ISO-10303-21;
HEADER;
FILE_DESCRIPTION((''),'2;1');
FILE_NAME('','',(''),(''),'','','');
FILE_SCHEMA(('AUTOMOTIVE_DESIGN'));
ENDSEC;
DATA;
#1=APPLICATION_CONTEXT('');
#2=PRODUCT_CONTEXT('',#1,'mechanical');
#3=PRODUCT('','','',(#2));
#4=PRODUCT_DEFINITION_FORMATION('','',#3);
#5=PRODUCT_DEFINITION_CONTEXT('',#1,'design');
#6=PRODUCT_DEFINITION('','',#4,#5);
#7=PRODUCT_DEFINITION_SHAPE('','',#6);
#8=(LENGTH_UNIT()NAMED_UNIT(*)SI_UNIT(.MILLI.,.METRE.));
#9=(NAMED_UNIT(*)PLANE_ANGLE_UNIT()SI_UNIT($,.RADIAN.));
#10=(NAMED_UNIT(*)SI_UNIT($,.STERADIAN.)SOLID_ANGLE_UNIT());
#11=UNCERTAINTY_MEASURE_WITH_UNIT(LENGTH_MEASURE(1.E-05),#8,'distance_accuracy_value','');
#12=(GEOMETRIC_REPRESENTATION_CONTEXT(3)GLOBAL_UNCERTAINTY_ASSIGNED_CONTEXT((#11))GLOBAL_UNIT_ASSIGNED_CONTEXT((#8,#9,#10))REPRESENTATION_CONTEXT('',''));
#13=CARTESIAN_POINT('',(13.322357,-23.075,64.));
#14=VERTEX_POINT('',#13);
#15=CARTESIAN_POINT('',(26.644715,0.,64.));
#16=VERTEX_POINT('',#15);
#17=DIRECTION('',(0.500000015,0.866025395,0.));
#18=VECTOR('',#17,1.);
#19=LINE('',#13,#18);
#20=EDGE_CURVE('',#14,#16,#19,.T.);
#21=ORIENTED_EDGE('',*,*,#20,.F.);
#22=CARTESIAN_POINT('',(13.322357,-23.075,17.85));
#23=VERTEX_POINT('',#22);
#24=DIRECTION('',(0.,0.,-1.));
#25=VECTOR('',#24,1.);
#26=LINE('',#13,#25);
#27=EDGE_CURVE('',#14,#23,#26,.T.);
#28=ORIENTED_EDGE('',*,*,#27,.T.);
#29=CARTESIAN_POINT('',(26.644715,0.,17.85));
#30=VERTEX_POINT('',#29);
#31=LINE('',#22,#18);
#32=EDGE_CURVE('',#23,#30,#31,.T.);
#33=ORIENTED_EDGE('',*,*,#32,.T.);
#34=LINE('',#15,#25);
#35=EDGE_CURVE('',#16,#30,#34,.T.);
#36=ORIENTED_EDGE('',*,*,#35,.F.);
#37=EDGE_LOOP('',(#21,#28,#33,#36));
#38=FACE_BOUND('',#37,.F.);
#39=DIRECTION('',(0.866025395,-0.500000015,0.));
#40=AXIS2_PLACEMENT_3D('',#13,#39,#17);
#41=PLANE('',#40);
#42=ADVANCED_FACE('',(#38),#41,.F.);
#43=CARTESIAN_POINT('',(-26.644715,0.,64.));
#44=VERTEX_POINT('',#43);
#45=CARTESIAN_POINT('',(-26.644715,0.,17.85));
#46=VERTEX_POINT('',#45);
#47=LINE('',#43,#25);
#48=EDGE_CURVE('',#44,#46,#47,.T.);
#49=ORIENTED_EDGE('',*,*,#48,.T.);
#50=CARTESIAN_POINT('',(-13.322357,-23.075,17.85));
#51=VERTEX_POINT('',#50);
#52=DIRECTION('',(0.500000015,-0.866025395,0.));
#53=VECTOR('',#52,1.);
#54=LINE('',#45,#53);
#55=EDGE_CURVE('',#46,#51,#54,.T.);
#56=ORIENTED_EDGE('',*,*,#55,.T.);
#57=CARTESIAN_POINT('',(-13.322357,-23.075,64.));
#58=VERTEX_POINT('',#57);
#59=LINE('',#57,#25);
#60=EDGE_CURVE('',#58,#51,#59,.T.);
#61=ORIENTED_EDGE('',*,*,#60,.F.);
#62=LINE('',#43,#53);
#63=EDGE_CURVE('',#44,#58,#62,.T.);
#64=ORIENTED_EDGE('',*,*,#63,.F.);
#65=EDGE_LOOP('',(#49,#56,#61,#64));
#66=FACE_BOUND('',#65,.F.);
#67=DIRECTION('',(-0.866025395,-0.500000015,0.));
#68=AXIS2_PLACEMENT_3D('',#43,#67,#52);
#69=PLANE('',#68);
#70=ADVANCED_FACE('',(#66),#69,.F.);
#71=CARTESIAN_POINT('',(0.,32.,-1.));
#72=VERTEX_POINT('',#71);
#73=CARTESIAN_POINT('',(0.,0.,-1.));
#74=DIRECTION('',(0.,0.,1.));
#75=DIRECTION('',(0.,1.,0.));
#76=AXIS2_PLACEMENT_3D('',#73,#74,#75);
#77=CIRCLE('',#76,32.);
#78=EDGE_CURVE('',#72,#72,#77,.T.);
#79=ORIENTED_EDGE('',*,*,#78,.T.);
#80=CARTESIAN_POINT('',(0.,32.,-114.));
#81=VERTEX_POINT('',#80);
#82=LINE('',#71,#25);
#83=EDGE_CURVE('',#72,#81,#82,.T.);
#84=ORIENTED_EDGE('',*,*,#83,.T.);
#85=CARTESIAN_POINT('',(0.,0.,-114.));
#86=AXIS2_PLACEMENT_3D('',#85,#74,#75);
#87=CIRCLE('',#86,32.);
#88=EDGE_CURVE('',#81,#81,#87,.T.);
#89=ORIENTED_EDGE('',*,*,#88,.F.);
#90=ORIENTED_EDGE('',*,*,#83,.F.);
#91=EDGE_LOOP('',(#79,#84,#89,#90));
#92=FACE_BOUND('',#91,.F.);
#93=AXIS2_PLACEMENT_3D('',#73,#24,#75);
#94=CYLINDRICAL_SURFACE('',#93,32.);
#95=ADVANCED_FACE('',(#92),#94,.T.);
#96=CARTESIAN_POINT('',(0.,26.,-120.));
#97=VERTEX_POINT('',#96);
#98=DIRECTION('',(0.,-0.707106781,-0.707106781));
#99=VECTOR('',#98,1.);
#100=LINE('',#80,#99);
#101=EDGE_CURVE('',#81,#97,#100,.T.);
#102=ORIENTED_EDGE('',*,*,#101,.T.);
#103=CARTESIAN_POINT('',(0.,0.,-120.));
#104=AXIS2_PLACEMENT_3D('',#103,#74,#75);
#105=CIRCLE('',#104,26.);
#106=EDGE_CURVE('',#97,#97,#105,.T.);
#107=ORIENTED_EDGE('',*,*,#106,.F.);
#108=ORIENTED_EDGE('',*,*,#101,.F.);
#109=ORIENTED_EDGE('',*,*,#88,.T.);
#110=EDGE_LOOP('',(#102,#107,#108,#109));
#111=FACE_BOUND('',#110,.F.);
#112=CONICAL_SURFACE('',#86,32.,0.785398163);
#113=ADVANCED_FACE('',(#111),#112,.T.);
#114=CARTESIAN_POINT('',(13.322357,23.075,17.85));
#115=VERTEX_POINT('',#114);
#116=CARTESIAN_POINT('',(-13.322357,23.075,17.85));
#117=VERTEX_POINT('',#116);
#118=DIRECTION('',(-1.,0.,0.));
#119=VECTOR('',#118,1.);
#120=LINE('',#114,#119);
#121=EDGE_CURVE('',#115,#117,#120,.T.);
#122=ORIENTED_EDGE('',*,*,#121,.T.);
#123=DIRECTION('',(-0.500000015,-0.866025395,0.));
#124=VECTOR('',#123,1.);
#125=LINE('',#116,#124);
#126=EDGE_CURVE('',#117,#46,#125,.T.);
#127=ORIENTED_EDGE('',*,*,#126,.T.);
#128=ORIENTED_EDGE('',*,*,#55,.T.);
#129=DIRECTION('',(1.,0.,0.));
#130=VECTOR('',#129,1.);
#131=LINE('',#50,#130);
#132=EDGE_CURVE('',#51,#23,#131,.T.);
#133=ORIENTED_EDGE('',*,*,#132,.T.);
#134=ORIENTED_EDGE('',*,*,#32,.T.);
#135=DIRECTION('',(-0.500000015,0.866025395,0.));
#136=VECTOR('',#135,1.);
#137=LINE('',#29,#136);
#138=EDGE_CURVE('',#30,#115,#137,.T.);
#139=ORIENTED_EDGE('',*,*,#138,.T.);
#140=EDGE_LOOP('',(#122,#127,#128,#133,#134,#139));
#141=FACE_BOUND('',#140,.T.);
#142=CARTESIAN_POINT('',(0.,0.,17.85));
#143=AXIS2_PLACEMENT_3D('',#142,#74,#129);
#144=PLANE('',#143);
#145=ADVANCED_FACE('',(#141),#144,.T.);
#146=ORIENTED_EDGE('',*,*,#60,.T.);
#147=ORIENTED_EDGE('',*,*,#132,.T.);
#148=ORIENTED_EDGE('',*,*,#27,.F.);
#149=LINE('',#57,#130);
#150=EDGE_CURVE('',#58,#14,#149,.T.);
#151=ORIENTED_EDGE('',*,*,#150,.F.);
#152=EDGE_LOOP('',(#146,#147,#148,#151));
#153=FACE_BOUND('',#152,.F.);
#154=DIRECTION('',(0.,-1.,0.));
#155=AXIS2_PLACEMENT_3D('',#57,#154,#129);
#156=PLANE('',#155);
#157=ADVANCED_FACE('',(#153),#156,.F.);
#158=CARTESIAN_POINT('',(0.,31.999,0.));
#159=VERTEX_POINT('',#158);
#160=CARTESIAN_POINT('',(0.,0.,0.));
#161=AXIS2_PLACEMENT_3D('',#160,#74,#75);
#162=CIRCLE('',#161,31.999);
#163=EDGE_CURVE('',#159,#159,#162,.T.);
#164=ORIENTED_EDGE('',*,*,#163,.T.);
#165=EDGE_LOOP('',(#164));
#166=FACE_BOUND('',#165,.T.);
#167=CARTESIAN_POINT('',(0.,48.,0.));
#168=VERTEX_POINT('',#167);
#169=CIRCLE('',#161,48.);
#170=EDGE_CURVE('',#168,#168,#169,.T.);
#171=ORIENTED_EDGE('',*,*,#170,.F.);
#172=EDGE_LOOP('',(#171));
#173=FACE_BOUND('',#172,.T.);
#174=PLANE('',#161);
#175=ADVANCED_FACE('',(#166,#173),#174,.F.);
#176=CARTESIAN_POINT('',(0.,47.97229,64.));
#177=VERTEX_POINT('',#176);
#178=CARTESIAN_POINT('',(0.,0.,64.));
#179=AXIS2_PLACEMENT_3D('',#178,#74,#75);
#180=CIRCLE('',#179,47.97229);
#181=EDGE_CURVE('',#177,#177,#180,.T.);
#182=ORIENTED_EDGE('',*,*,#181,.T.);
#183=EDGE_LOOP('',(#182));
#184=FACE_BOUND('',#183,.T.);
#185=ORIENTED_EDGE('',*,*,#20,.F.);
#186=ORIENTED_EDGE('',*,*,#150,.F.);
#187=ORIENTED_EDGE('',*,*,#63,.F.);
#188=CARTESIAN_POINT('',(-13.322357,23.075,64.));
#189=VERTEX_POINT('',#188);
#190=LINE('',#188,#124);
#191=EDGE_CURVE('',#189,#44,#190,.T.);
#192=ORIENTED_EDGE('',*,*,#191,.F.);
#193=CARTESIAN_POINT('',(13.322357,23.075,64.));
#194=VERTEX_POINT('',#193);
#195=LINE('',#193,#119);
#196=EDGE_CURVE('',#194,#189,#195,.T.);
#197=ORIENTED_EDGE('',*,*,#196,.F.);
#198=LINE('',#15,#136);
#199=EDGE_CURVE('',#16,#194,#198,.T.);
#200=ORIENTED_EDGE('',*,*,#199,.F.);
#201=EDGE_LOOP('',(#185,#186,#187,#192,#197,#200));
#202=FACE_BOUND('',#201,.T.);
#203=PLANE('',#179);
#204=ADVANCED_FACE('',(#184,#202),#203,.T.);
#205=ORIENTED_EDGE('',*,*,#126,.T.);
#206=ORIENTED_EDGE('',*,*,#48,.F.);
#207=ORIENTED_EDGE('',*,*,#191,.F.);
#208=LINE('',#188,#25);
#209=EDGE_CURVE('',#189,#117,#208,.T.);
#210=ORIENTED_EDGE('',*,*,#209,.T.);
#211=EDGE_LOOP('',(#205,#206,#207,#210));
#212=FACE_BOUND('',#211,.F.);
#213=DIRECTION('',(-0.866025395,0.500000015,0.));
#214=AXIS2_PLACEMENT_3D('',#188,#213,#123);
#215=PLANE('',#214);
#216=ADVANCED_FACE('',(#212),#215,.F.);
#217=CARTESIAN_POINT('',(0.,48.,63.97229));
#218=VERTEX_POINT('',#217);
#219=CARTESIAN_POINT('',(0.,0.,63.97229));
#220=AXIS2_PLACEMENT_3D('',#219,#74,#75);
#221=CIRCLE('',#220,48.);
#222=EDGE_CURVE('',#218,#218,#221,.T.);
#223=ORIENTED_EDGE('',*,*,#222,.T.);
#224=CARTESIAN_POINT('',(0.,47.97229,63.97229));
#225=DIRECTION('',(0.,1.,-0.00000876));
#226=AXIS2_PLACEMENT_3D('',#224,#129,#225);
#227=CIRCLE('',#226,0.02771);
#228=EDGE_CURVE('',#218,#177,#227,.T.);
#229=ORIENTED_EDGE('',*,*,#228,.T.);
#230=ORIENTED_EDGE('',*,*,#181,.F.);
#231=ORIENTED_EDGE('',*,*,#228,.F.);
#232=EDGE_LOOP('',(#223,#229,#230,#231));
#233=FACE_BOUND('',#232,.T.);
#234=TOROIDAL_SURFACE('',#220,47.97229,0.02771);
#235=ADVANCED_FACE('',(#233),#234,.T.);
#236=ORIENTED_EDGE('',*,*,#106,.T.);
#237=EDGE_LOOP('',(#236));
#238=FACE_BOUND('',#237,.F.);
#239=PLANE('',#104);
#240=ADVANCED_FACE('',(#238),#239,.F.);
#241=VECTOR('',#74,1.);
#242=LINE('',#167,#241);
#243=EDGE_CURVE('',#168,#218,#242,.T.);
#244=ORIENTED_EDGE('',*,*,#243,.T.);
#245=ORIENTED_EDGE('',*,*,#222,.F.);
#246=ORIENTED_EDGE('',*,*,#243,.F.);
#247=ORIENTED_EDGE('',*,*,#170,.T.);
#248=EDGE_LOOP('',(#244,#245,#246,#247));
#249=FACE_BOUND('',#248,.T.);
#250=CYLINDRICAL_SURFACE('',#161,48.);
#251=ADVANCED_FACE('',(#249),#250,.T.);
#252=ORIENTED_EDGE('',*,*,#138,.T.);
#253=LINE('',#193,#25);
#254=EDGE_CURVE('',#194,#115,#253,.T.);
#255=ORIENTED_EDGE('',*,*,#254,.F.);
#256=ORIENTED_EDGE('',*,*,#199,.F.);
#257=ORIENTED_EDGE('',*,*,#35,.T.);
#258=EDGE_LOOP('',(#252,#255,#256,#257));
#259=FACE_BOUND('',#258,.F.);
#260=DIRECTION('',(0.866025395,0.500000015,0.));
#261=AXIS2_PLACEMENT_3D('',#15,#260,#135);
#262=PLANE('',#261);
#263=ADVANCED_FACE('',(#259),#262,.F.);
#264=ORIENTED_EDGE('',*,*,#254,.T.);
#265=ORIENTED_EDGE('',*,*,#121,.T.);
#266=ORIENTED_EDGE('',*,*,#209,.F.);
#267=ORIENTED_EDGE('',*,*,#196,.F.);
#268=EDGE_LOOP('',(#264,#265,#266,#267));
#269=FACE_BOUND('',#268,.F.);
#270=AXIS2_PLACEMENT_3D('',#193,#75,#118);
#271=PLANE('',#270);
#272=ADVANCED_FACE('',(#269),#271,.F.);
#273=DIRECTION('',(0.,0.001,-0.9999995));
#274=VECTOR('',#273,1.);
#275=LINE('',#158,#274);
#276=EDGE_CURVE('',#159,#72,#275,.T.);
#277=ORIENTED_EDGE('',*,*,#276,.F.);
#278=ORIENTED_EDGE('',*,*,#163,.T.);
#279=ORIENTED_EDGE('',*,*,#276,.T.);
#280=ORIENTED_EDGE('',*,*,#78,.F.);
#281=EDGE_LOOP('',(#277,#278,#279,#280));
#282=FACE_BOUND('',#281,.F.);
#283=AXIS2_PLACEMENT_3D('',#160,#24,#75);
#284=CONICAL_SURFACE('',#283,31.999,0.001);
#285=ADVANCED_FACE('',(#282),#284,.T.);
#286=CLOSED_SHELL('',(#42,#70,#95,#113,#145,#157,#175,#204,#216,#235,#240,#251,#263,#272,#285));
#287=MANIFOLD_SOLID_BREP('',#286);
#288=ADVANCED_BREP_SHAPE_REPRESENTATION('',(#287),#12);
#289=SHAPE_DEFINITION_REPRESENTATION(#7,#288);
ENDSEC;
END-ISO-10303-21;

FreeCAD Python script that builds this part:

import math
import FreeCAD as App
import Part
import Sketcher

V = App.Vector
Q = App.Units.Quantity

doc = App.newDocument("Part")
body = doc.addObject("PartDesign::Body", "Body")

sketch1 = body.newObject("Sketcher::SketchObject", "Sketch")
sketch1.AttachmentSupport = (doc.getObject("YZ_Plane"), [""])
sketch1.MapMode = "FlatFace"
sketch1.addGeometry([
    Part.LineSegment(V(31.999, 0, 0), V(48, 0, 0)),
    Part.LineSegment(V(48, 0, 0), V(48, 63.972, 0)),
    Part.ArcOfCircle(Part.Circle(V(47.972, 63.972, 0), V(0, 0, 1), 0.028), math.radians(0), math.radians(90)),
    Part.LineSegment(V(47.972, 64, 0), V(0, 64, 0)),
    Part.LineSegment(V(0, 64, 0), V(0, -120, 0)),
    Part.LineSegment(V(0, -120, 0), V(26, -120, 0)),
    Part.LineSegment(V(26, -120, 0), V(32, -114, 0)),
    Part.LineSegment(V(32, -114, 0), V(32, -1, 0)),
    Part.LineSegment(V(32, -1, 0), V(31.999, 0, 0)),
], False)
sketch1.addConstraint([
    Sketcher.Constraint("Coincident", 0, 2, 1, 1),
    Sketcher.Constraint("Coincident", 1, 2, 2, 1),
    Sketcher.Constraint("Coincident", 2, 2, 3, 1),
    Sketcher.Constraint("Coincident", 3, 2, 4, 1),
    Sketcher.Constraint("Coincident", 4, 2, 5, 1),
    Sketcher.Constraint("Coincident", 5, 2, 6, 1),
    Sketcher.Constraint("Coincident", 6, 2, 7, 1),
    Sketcher.Constraint("Coincident", 7, 2, 8, 1),
    Sketcher.Constraint("Coincident", 8, 2, 0, 1),
    Sketcher.Constraint("Horizontal", 0),
    Sketcher.Constraint("Vertical", 1),
    Sketcher.Constraint("Horizontal", 3),
    Sketcher.Constraint("Vertical", 4),
    Sketcher.Constraint("Horizontal", 5),
    Sketcher.Constraint("Vertical", 7),
    Sketcher.Constraint("PointOnObject", 0, 2, -1),
    Sketcher.Constraint("PointOnObject", 3, 2, -2),
    Sketcher.Constraint("Horizontal", 2, 3, 1, 2),
    Sketcher.Constraint("DistanceX", 5, 1, 5, 2, 26.0),
    Sketcher.Constraint("DistanceY", 4, 2, 4, 1, 184.0),
    Sketcher.Constraint("DistanceY", 7, 1, 7, 2, 113.0),
    Sketcher.Constraint("Angle", 6, Q("45 deg")),
    Sketcher.Constraint("Distance", 8, 1.0),
    Sketcher.Constraint("DistanceX", -1, 1, 0, 2, 48.0),
    Sketcher.Constraint("DistanceY", -1, 1, 2, 2, 64.0),
    Sketcher.Constraint("DistanceX", 0, 1, 0, 2, 16.001),
    Sketcher.Constraint("Radius", 2, 0.02771),
    Sketcher.Constraint("DistanceX", 3, 2, 3, 1, 47.97229),
])
revolution = body.newObject("PartDesign::Revolution", "Revolution")
revolution.Profile = sketch1
revolution.ReferenceAxis = (sketch1, ["V_Axis"])
revolution.Angle = 360

sketch2 = body.newObject("Sketcher::SketchObject", "Sketch001")
sketch2.AttachmentSupport = (doc.getObject("XY_Plane"), [""])
sketch2.MapMode = "FlatFace"
sketch2.AttachmentOffset = App.Placement(V(0, 0, 64), App.Rotation())
sketch2.addGeometry([
    Part.LineSegment(V(27, 0, 0), V(13, 23, 0)),
    Part.LineSegment(V(13, 23, 0), V(-13, 23, 0)),
    Part.LineSegment(V(-13, 23, 0), V(-27, 0, 0)),
    Part.LineSegment(V(-27, 0, 0), V(-13, -23, 0)),
    Part.LineSegment(V(-13, -23, 0), V(13, -23, 0)),
    Part.LineSegment(V(13, -23, 0), V(27, 0, 0)),
], False)
sketch2.addConstraint([
    Sketcher.Constraint("Coincident", 0, 2, 1, 1),
    Sketcher.Constraint("Coincident", 1, 2, 2, 1),
    Sketcher.Constraint("Coincident", 2, 2, 3, 1),
    Sketcher.Constraint("Coincident", 3, 2, 4, 1),
    Sketcher.Constraint("Coincident", 4, 2, 5, 1),
    Sketcher.Constraint("Coincident", 5, 2, 0, 1),
    Sketcher.Constraint("Horizontal", 1),
    Sketcher.Constraint("Horizontal", 4),
    Sketcher.Constraint("Symmetric", 0, 2, 3, 2, -1, 1),
    Sketcher.Constraint("Symmetric", 2, 2, 5, 2, -1, 1),
    Sketcher.Constraint("PointOnObject", 2, 2, -1),
    Sketcher.Constraint("Parallel", 2, 5),
    Sketcher.Constraint("Vertical", 1, 2, 3, 2),
    Sketcher.Constraint("Angle", 0, Q("120.000001 deg")),
    Sketcher.Constraint("DistanceY", 3, 2, 1, 2, 46.15),
    Sketcher.Constraint("DistanceX", 1, 2, 1, 1, 26.644714),
])
pocket1 = body.newObject("PartDesign::Pocket", "Pocket")
pocket1.Profile = sketch2
pocket1.Length = 46.15

doc.recompute()
